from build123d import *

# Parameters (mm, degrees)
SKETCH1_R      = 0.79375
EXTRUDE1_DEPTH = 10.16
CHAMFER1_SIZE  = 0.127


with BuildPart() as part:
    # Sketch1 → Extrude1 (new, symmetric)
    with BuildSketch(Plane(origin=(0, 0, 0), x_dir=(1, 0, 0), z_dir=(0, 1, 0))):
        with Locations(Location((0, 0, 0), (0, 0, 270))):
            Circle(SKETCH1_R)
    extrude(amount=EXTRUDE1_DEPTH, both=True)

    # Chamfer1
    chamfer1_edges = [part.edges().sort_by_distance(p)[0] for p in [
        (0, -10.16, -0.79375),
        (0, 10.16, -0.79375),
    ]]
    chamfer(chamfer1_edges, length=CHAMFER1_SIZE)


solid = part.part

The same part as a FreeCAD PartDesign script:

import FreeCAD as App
import Part
import Sketcher

V = App.Vector
Q = App.Units.Quantity


def edges_at(feature, points):
    """Names of the edges that pass closest to the given points."""
    edges = feature.Shape.Edges
    near = lambda p: min(range(len(edges)), key=lambda i: edges[i].distToShape(Part.Vertex(*p))[0])
    return sorted({f"Edge{near(p) + 1}" for p in points})

doc = App.newDocument("Part")
body = doc.addObject("PartDesign::Body", "Body")

sketch1 = body.newObject("Sketcher::SketchObject", "Sketch")
sketch1.AttachmentSupport = (doc.getObject("XZ_Plane"), [""])
sketch1.MapMode = "FlatFace"
sketch1.addGeometry(Part.Circle(V(0, 0, 0), V(0, 0, 1), 0.8), False)
sketch1.addConstraint(Sketcher.Constraint("Coincident", 0, 3, -1, 1))
sketch1.addConstraint(Sketcher.Constraint("Diameter", 0, Q("0.0625 in")))
pad1 = body.newObject("PartDesign::Pad", "Pad")
pad1.Profile = sketch1
pad1.Length = Q("0.8 in")
pad1.Midplane = True
doc.recompute()

chamfer = body.newObject("PartDesign::Chamfer", "Chamfer")
chamfer.Base = (pad1, edges_at(pad1, [(0, -10.16, -0.794), (0, 10.16, -0.794)]))
chamfer.Size = Q("0.005 in")

doc.recompute()
